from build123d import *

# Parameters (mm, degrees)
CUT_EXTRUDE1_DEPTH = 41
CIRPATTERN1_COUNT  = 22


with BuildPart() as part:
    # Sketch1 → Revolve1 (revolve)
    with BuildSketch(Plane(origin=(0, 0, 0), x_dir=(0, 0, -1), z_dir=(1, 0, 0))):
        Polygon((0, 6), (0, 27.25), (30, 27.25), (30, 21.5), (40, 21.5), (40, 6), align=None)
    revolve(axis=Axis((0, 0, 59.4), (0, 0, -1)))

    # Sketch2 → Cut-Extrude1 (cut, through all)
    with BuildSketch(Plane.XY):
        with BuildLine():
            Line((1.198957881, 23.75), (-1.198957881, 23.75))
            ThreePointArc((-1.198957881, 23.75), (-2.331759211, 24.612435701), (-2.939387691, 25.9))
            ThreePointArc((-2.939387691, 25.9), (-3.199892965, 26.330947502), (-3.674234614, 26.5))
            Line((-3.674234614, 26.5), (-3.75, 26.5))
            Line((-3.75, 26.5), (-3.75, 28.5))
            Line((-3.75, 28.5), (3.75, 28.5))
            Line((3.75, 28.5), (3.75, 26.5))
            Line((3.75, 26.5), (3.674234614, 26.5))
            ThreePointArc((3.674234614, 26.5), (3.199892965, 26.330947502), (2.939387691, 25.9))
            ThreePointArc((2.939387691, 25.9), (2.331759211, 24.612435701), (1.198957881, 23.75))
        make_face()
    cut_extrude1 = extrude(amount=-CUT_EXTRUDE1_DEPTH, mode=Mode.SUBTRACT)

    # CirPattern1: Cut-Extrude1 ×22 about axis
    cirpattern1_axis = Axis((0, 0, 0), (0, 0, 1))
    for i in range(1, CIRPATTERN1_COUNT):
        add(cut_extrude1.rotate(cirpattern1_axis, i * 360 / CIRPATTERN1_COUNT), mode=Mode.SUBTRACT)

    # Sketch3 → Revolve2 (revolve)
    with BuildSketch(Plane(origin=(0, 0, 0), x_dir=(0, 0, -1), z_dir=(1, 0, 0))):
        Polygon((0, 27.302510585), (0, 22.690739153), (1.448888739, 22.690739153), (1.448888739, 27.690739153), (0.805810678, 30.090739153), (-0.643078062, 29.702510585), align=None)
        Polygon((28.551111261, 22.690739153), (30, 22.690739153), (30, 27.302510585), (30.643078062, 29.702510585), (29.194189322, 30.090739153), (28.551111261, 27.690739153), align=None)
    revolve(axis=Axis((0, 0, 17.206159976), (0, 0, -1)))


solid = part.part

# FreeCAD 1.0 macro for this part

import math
import FreeCAD as App
import Part
import Sketcher
Q = App.Units.Quantity


def add_polygon(sketch, points):
    """Adds a closed chain of lines whose ends are joined by coincident constraints."""
    first, n = sketch.GeometryCount, len(points)
    for a, b in zip(points, points[1:] + points[:1]):
        sketch.addGeometry(Part.LineSegment(App.Vector(*a, 0), App.Vector(*b, 0)), False)
    for i in range(n):
        sketch.addConstraint(Sketcher.Constraint("Coincident", first + i, 2, first + (i + 1) % n, 1))

doc = App.newDocument("Part")
body = doc.addObject("PartDesign::Body", "Body")

# Sketch on YZ plane
sketch1 = doc.addObject("Sketcher::SketchObject", "Sketch")
body.addObject(sketch1)
sketch1.AttachmentSupport = (doc.YZ_Plane, [""])
sketch1.MapMode = "FlatFace"
add_polygon(sketch1, [(27, 0), (6, 0), (6, -40), (22, -40), (22, -30), (27, -30)])  # lines 0-5
sketch1.addConstraint([
    Sketcher.Constraint("Horizontal", 0),
    Sketcher.Constraint("Vertical", 1),
    Sketcher.Constraint("Horizontal", 2),
    Sketcher.Constraint("Vertical", 3),
    Sketcher.Constraint("Horizontal", 4),
    Sketcher.Constraint("Vertical", 5),
    Sketcher.Constraint("PointOnObject", 0, 2, -1),
    Sketcher.Constraint("DistanceY", 1, 2, 1, 1, Q("40 mm")),
    Sketcher.Constraint("DistanceY", 3, 1, 3, 2, Q("10 mm")),
    Sketcher.Constraint("DistanceX", 2, 1, 2, 2, Q("15.5 mm")),
    Sketcher.Constraint("DistanceX", -1, 1, 0, 2, Q("6 mm")),
    Sketcher.Constraint("DistanceX", 0, 2, 0, 1, Q("21.25 mm")),
])
revolution = doc.addObject("PartDesign::Revolution", "Revolution")
body.addObject(revolution)
revolution.Profile = sketch1
revolution.ReferenceAxis = (sketch1, ["V_Axis"])
revolution.Angle = 360

# Sketch on XY plane
sketch2 = doc.addObject("Sketcher::SketchObject", "Sketch001")
body.addObject(sketch2)
sketch2.AttachmentSupport = (doc.XY_Plane, [""])
sketch2.MapMode = "FlatFace"
sketch2.addGeometry([
    Part.LineSegment(App.Vector(-1.2, 23.75, 0), App.Vector(1.2, 23.75, 0)),  # 0
    Part.ArcOfCircle(Part.Circle(App.Vector(0, 26.5, 0), App.Vector(0, 0, 1), 3), math.radians(-66), math.radians(-12)),  # 1
    Part.ArcOfCircle(Part.Circle(App.Vector(3.67, 25.75, 0), App.Vector(0, 0, 1), 0.75), math.radians(90), math.radians(168)),  # 2
    Part.LineSegment(App.Vector(3.67, 26.5, 0), App.Vector(3.75, 26.5, 0)),  # 3
    Part.LineSegment(App.Vector(3.75, 26.5, 0), App.Vector(3.75, 28.5, 0)),  # 4
    Part.LineSegment(App.Vector(3.75, 28.5, 0), App.Vector(-3.75, 28.5, 0)),  # 5
    Part.LineSegment(App.Vector(-3.75, 28.5, 0), App.Vector(-3.75, 26.5, 0)),  # 6
    Part.LineSegment(App.Vector(-3.75, 26.5, 0), App.Vector(-3.67, 26.5, 0)),  # 7
    Part.ArcOfCircle(Part.Circle(App.Vector(-3.67, 25.75, 0), App.Vector(0, 0, 1), 0.75), math.radians(12), math.radians(90)),  # 8
    Part.ArcOfCircle(Part.Circle(App.Vector(0, 26.5, 0), App.Vector(0, 0, 1), 3), math.radians(-168), math.radians(-114)),  # 9
], False)
sketch2.addConstraint([
    Sketcher.Constraint("Coincident", 0, 2, 1, 1),
    Sketcher.Constraint("Tangent", 1, 2, 2, 2),
    Sketcher.Constraint("Tangent", 2, 1, 3, 1),
    Sketcher.Constraint("Coincident", 3, 2, 4, 1),
    Sketcher.Constraint("Coincident", 4, 2, 5, 1),
    Sketcher.Constraint("Coincident", 5, 2, 6, 1),
    Sketcher.Constraint("Coincident", 6, 2, 7, 1),
    Sketcher.Constraint("Tangent", 7, 2, 8, 2),
    Sketcher.Constraint("Tangent", 8, 1, 9, 1),
    Sketcher.Constraint("Coincident", 9, 2, 0, 1),
    Sketcher.Constraint("Horizontal", 0),
    Sketcher.Constraint("Horizontal", 3),
    Sketcher.Constraint("Vertical", 4),
    Sketcher.Constraint("Horizontal", 5),
    Sketcher.Constraint("Vertical", 6),
    Sketcher.Constraint("Horizontal", 7),
    Sketcher.Constraint("Coincident", 9, 3, 1, 3),
    Sketcher.Constraint("Equal", 2, 8),
    Sketcher.Constraint("Equal", 1, 9),
    Sketcher.Constraint("Symmetric", 2, 3, 8, 3, -2),
    Sketcher.Constraint("Horizontal", 9, 3, 2, 1),
    Sketcher.Constraint("Equal", 3, 7),
    Sketcher.Constraint("Radius", 1, Q("3 mm")),
    Sketcher.Constraint("DistanceY", 4, 1, 4, 2, Q("2 mm")),
    Sketcher.Constraint("Radius", 2, Q("0.75 mm")),
    Sketcher.Constraint("DistanceX", 5, 2, 5, 1, Q("7.5 mm")),
    Sketcher.Constraint("DistanceY", 0, 2, 2, 3, Q("2 mm")),
    Sketcher.Constraint("DistanceY", -1, 1, 1, 3, Q("26.5 mm")),
])
pocket1 = doc.addObject("PartDesign::Pocket", "Pocket")
body.addObject(pocket1)
pocket1.Profile = sketch2
pocket1.Type = "ThroughAll"
doc.recompute()

polarpattern = doc.addObject("PartDesign::PolarPattern", "PolarPattern")
body.addObject(polarpattern)
polarpattern.Originals = [pocket1]
polarpattern.Axis = (doc.Z_Axis, [""])
polarpattern.Angle = 360
polarpattern.Occurrences = 22
body.Tip = polarpattern

# Sketch on YZ plane
sketch3 = doc.addObject("Sketcher::SketchObject", "Sketch002")
body.addObject(sketch3)
sketch3.AttachmentSupport = (doc.YZ_Plane, [""])
sketch3.MapMode = "FlatFace"
add_polygon(sketch3, [(27.3, 0), (22.7, 0), (22.7, -1.4), (27.7, -1.4), (30.1, -0.8), (29.7, 0.6)])  # lines 0-5
add_polygon(sketch3, [(22.7, -28.6), (22.7, -30), (27.3, -30), (29.7, -30.6), (30.1, -29.2), (27.7, -28.6)])  # lines 6-11
sketch3.addConstraint([
    Sketcher.Constraint("Horizontal", 0),
    Sketcher.Constraint("Vertical", 1),
    Sketcher.Constraint("Horizontal", 2),
    Sketcher.Constraint("Vertical", 6),
    Sketcher.Constraint("Horizontal", 7),
    Sketcher.Constraint("Horizontal", 11),
    Sketcher.Constraint("PointOnObject", 0, 2, -1),
    Sketcher.Constraint("Perpendicular", 3, 4),
    Sketcher.Constraint("Perpendicular", 4, 5),
    Sketcher.Constraint("Perpendicular", 8, 9),
    Sketcher.Constraint("Perpendicular", 9, 10),
    Sketcher.Constraint("Vertical", 1, 2, 6, 2),
    Sketcher.Constraint("Vertical", 5, 2, 7, 2),
    Sketcher.Constraint("Vertical", 4, 2, 8, 2),
    Sketcher.Constraint("Vertical", 3, 2, 9, 2),
    Sketcher.Constraint("Vertical", 2, 2, 10, 2),
    Sketcher.Constraint("Equal", 1, 6),
    Sketcher.Constraint("Equal", 3, 5),
    Sketcher.Constraint("DistanceX", 2, 1, 2, 2, Q("5 mm")),
    Sketcher.Constraint("Angle", 3, Q("15 deg")),
    Sketcher.Constraint("DistanceY", 6, 2, -1, 1, Q("30 mm")),
    Sketcher.Constraint("Distance", 4, Q("1.5 mm")),
    Sketcher.Constraint("DistanceX", 2, 2, 3, 2, Q("2.4 mm")),
    Sketcher.Constraint("DistanceX", -1, 1, 0, 2, Q("22.690739 mm")),
])
revolution2 = doc.addObject("PartDesign::Revolution", "Revolution001")
body.addObject(revolution2)
revolution2.Profile = sketch3
revolution2.ReferenceAxis = (sketch3, ["V_Axis"])
revolution2.Angle = 360

doc.recompute()
